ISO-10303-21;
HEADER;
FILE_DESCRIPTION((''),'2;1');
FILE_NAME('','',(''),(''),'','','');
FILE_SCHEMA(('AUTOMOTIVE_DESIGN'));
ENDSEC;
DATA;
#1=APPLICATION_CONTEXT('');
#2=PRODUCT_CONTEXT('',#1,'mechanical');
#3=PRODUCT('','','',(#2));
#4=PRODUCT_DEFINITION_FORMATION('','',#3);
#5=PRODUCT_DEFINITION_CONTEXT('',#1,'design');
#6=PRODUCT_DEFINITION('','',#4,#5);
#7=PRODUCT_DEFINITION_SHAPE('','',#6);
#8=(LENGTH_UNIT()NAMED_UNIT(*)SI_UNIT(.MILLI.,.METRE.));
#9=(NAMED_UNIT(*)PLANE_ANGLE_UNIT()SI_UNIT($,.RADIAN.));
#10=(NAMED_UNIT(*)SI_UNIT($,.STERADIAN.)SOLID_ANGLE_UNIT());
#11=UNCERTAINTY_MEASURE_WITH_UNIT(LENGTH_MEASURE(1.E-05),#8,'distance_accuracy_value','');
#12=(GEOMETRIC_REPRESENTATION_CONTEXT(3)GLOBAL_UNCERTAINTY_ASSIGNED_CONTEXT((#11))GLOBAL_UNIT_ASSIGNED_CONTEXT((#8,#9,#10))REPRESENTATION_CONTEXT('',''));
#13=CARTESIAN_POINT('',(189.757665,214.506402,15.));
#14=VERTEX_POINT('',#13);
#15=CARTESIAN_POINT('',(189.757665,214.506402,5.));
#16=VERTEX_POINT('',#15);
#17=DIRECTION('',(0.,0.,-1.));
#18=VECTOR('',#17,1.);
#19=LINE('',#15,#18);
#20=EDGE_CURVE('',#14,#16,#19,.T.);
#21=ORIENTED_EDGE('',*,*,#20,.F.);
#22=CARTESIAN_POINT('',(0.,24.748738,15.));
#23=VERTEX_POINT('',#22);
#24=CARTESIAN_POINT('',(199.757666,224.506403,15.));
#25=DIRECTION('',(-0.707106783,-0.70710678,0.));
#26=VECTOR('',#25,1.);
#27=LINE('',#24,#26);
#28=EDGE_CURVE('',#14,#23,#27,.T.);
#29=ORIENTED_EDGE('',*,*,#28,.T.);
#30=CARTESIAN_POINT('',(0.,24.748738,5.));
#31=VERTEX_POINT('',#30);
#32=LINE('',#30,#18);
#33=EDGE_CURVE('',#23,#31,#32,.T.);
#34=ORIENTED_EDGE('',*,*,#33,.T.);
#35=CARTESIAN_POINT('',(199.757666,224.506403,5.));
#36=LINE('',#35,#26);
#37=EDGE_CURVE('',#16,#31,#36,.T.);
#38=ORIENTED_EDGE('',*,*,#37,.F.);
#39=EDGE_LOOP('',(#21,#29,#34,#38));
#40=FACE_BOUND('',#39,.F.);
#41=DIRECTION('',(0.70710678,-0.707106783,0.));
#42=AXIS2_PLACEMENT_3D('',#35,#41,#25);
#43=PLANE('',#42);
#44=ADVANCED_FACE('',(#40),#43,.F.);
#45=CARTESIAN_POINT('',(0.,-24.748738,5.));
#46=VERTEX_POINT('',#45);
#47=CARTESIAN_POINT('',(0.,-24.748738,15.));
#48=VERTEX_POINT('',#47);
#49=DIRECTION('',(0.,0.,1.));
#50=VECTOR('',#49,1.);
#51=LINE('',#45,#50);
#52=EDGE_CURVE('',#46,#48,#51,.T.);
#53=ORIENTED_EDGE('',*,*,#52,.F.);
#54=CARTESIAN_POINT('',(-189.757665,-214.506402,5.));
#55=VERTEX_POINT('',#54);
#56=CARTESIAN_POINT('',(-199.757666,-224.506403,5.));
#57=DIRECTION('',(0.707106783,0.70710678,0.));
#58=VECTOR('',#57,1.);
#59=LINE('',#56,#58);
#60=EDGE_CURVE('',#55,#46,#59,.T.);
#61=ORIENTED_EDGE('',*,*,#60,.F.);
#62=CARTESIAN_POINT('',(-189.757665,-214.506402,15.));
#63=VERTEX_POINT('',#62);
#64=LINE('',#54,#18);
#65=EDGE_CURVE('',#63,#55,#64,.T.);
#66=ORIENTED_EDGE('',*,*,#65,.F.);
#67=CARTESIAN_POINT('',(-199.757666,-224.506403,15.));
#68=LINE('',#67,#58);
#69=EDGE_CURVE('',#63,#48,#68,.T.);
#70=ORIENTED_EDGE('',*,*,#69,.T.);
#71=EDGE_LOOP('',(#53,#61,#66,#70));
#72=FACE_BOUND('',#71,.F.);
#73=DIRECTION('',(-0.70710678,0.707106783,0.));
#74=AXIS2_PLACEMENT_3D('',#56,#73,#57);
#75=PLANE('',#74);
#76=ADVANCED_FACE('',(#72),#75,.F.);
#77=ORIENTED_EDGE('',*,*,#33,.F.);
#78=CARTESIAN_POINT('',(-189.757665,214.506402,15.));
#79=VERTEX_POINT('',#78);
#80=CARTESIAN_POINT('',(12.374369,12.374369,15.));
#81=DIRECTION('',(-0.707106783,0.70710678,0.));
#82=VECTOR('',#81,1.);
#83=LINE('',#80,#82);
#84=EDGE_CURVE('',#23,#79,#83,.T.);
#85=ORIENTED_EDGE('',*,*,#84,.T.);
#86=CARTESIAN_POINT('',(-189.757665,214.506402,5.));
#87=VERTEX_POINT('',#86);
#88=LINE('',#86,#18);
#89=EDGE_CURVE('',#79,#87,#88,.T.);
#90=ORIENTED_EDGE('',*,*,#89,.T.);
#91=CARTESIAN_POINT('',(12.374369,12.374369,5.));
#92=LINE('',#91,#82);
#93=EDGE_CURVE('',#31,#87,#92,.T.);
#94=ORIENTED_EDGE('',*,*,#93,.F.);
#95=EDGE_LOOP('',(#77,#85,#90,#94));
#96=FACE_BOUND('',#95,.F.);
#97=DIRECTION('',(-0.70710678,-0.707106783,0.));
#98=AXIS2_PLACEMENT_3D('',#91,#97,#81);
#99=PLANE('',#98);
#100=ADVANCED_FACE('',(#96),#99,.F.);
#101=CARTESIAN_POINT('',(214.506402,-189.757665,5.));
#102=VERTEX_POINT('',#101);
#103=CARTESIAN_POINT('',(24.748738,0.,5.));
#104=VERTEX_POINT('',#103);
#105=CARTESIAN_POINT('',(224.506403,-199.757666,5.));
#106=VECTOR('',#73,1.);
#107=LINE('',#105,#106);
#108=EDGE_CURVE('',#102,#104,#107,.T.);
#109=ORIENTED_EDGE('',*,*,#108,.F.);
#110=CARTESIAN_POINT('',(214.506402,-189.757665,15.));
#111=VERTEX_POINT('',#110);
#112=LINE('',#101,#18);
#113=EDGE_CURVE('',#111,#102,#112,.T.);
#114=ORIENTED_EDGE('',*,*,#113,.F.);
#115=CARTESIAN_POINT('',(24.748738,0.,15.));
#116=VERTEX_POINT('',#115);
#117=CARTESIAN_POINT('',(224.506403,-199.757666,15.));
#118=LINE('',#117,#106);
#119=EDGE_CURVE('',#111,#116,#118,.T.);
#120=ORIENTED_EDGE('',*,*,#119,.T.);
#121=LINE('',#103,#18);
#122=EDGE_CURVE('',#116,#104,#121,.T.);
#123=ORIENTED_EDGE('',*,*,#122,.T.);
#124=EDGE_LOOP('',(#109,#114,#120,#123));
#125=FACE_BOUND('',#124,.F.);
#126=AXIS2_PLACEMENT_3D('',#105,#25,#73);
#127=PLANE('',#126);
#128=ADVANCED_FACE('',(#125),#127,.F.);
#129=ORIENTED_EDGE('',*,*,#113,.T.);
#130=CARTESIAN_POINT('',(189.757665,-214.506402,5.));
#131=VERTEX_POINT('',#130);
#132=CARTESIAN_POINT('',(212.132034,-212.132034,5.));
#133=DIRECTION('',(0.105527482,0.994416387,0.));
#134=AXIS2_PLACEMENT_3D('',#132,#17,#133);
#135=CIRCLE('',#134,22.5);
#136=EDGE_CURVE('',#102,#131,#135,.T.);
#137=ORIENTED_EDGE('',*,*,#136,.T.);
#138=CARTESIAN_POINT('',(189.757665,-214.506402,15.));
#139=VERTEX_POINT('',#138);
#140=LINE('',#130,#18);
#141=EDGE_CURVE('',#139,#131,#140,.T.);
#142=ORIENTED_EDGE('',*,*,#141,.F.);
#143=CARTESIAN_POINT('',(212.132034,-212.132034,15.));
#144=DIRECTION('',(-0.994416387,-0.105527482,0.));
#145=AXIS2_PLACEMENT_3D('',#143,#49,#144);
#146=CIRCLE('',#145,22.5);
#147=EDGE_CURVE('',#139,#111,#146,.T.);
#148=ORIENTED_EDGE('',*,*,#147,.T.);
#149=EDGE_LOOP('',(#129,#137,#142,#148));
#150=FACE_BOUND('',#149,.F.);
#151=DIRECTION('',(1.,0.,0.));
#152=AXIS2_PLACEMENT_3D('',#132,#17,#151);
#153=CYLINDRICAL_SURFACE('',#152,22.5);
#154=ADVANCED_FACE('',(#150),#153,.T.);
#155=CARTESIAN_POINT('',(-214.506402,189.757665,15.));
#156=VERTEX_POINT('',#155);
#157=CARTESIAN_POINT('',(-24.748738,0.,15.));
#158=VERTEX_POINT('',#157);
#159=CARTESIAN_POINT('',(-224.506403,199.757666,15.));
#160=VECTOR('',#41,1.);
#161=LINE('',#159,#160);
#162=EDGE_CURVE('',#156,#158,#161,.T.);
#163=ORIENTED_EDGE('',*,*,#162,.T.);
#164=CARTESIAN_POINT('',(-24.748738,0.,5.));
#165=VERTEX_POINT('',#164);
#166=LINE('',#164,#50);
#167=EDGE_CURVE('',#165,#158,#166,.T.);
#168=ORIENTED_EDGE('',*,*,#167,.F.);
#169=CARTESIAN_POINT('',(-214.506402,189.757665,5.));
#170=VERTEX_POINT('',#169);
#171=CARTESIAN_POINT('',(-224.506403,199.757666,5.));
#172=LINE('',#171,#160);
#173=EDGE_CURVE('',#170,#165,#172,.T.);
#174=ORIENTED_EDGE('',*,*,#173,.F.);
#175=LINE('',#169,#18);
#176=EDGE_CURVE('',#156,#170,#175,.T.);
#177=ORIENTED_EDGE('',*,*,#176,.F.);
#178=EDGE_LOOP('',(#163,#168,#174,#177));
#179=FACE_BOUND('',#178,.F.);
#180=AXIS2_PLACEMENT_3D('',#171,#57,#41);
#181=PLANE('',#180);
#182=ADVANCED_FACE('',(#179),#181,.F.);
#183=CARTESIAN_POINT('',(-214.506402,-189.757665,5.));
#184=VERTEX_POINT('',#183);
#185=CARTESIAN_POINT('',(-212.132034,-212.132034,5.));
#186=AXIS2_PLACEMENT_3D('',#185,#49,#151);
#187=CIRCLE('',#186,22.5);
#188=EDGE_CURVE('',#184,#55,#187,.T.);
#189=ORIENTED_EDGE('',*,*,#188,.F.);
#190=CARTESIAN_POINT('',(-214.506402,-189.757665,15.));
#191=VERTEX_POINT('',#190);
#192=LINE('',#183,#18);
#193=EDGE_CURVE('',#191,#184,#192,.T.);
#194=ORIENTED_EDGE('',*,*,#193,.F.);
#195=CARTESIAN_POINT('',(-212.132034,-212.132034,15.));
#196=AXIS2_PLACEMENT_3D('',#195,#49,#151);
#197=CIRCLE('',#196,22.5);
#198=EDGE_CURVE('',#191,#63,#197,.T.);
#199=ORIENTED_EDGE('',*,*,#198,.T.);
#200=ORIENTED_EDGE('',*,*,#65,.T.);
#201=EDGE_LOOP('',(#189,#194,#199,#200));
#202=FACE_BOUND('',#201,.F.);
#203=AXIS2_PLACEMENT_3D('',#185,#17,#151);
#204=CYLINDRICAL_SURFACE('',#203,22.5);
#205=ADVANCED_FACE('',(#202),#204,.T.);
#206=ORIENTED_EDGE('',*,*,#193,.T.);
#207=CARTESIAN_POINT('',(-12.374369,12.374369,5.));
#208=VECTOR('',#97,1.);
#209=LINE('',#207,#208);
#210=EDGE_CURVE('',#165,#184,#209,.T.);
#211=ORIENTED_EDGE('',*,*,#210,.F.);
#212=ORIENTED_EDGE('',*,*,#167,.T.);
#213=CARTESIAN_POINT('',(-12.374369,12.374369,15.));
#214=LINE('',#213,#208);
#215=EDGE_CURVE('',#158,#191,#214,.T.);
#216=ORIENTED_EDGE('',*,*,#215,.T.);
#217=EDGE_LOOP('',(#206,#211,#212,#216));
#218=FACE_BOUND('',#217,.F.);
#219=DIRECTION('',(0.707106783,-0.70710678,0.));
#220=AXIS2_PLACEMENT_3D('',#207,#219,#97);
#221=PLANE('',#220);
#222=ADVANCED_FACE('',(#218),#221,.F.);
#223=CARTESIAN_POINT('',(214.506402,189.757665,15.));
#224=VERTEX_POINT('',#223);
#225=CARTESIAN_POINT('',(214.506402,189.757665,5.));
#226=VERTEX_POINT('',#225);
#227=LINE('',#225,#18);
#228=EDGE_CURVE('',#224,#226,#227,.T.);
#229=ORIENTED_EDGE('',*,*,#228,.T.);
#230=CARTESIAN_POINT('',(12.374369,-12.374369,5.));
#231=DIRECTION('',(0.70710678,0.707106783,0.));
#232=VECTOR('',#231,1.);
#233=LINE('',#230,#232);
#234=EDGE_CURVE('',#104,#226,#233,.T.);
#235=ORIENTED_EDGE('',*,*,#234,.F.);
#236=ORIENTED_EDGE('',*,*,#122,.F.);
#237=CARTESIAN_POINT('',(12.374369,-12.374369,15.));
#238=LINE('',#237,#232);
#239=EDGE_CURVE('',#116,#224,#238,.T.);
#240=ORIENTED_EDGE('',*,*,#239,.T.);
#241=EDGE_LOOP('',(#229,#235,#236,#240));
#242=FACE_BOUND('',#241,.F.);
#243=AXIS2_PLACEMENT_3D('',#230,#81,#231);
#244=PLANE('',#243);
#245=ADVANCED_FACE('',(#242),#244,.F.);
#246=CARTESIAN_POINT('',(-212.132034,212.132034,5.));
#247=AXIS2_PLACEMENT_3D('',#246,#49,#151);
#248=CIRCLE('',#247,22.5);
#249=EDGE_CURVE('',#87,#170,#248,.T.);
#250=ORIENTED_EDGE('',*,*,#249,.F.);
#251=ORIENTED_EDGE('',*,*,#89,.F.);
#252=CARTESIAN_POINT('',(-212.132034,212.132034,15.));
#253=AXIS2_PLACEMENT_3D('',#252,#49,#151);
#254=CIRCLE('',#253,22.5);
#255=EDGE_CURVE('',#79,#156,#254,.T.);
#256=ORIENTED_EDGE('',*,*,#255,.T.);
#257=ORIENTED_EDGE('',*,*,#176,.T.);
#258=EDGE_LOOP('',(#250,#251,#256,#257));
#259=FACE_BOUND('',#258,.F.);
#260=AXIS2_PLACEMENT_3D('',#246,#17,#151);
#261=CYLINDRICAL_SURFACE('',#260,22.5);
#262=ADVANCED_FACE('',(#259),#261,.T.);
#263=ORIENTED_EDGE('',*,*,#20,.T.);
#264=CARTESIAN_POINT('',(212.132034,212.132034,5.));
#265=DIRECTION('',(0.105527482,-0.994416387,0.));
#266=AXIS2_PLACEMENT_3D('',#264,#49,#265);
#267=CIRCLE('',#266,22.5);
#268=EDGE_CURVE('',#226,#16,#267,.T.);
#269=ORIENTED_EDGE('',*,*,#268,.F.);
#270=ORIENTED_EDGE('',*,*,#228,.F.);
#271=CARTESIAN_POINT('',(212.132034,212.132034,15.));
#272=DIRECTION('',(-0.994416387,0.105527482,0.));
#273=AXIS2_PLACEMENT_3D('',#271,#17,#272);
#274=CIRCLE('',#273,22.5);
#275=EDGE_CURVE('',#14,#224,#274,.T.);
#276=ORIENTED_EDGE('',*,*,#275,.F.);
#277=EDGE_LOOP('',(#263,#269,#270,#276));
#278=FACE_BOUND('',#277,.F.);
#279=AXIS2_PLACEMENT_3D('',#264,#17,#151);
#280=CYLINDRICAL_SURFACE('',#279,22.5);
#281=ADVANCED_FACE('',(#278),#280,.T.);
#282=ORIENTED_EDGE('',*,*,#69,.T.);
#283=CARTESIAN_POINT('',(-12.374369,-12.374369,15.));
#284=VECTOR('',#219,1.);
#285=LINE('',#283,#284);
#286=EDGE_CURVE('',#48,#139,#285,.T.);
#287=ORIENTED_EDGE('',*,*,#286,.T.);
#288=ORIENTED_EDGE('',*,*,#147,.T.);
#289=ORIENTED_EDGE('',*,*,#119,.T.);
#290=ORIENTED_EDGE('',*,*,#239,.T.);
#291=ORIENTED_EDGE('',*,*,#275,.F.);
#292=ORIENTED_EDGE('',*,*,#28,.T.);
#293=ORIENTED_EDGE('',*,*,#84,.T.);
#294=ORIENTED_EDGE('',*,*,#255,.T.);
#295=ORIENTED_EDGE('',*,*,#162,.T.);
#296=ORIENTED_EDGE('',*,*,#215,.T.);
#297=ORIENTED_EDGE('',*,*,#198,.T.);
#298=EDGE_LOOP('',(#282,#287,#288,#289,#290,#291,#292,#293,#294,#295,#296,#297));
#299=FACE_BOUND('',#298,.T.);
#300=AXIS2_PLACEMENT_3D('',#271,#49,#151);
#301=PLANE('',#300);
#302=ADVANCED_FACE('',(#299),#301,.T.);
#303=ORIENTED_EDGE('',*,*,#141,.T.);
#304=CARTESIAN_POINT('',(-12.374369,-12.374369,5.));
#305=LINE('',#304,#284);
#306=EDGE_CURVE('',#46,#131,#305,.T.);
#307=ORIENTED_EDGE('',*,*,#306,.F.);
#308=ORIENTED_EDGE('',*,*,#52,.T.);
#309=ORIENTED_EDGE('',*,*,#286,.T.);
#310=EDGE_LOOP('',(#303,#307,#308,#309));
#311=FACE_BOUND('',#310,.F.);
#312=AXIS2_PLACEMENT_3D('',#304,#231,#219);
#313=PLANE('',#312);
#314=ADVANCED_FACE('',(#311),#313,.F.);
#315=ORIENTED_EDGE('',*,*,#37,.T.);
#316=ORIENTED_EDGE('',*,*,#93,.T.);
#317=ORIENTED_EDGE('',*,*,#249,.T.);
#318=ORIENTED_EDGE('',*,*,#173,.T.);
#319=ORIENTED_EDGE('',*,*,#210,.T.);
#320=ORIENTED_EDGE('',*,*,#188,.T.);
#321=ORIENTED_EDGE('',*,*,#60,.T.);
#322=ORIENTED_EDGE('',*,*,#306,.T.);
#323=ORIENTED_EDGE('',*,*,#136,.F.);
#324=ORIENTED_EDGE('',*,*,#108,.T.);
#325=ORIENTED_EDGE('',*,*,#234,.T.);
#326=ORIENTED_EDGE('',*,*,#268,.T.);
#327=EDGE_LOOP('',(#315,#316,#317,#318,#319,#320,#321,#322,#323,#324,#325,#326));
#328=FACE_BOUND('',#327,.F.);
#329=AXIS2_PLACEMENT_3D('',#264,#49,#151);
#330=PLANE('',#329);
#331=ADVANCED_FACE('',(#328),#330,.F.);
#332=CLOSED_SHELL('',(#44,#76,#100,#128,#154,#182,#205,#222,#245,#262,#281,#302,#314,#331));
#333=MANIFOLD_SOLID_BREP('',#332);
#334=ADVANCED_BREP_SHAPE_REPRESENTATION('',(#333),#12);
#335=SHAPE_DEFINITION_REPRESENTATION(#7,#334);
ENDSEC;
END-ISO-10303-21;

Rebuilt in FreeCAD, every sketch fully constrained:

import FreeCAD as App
import Part
import Sketcher
Q = App.Units.Quantity

doc = App.newDocument("Part")
body = doc.addObject("PartDesign::Body", "Body")

sketch1 = body.newObject("Sketcher::SketchObject", "Sketch")
sketch1.AttachmentSupport = (doc.getObject("XY_Plane"), [""])
sketch1.MapMode = "FlatFace"
sketch1.AttachmentOffset = App.Placement(App.Vector(0, 0, 5), App.Rotation())
sketch1.addGeometry([
    Part.LineSegment(App.Vector(-12, -12, 0), App.Vector(200, -225, 0)),
    Part.LineSegment(App.Vector(200, -225, 0), App.Vector(225, -200, 0)),
    Part.LineSegment(App.Vector(225, -200, 0), App.Vector(12, 12, 0)),
    Part.LineSegment(App.Vector(12, 12, 0), App.Vector(-12, -12, 0)),
], False)
sketch1.addConstraint([
    Sketcher.Constraint("Coincident", 0, 2, 1, 1),
    Sketcher.Constraint("Coincident", 1, 2, 2, 1),
    Sketcher.Constraint("Coincident", 2, 2, 3, 1),
    Sketcher.Constraint("Coincident", 3, 2, 0, 1),
    Sketcher.Constraint("Symmetric", 2, 2, 3, 2, -1, 1),
    Sketcher.Constraint("Perpendicular", 0, 1),
    Sketcher.Constraint("Perpendicular", 1, 2),
    Sketcher.Constraint("Perpendicular", 2, 3),
    Sketcher.Constraint("Angle", 0, Q("-45 deg")),
    Sketcher.Constraint("Distance", 0, 300.0),
    Sketcher.Constraint("Distance", 1, 35.0),
])
pad1 = body.newObject("PartDesign::Pad", "Pad")
pad1.Profile = sketch1
pad1.Length = 10

sketch2 = body.newObject("Sketcher::SketchObject", "Sketch001")
sketch2.AttachmentSupport = (doc.getObject("XY_Plane"), [""])
sketch2.MapMode = "FlatFace"
sketch2.AttachmentOffset = App.Placement(App.Vector(0, 0, 5), App.Rotation())
sketch2.addGeometry([
    Part.LineSegment(App.Vector(-12, 12, 0), App.Vector(-225, -200, 0)),
    Part.LineSegment(App.Vector(-225, -200, 0), App.Vector(-200, -225, 0)),
    Part.LineSegment(App.Vector(-200, -225, 0), App.Vector(12, -12, 0)),
    Part.LineSegment(App.Vector(12, -12, 0), App.Vector(-12, 12, 0)),
], False)
sketch2.addConstraint([
    Sketcher.Constraint("Coincident", 0, 2, 1, 1),
    Sketcher.Constraint("Coincident", 1, 2, 2, 1),
    Sketcher.Constraint("Coincident", 2, 2, 3, 1),
    Sketcher.Constraint("Coincident", 3, 2, 0, 1),
    Sketcher.Constraint("Symmetric", 2, 2, 3, 2, -1, 1),
    Sketcher.Constraint("Perpendicular", 0, 1),
    Sketcher.Constraint("Perpendicular", 1, 2),
    Sketcher.Constraint("Perpendicular", 2, 3),
    Sketcher.Constraint("Angle", 0, Q("-135 deg")),
    Sketcher.Constraint("Distance", 0, 300.0),
    Sketcher.Constraint("Distance", 1, 35.0),
])
pad2 = body.newObject("PartDesign::Pad", "Pad001")
pad2.Profile = sketch2
pad2.Length = 10

sketch3 = body.newObject("Sketcher::SketchObject", "Sketch002")
sketch3.AttachmentSupport = (doc.getObject("XY_Plane"), [""])
sketch3.MapMode = "FlatFace"
sketch3.AttachmentOffset = App.Placement(App.Vector(0, 0, 5), App.Rotation())
sketch3.addGeometry([
    Part.LineSegment(App.Vector(12, -12, 0), App.Vector(225, 200, 0)),
    Part.LineSegment(App.Vector(225, 200, 0), App.Vector(200, 225, 0)),
    Part.LineSegment(App.Vector(200, 225, 0), App.Vector(-12, 12, 0)),
    Part.LineSegment(App.Vector(-12, 12, 0), App.Vector(12, -12, 0)),
], False)
sketch3.addConstraint([
    Sketcher.Constraint("Coincident", 0, 2, 1, 1),
    Sketcher.Constraint("Coincident", 1, 2, 2, 1),
    Sketcher.Constraint("Coincident", 2, 2, 3, 1),
    Sketcher.Constraint("Coincident", 3, 2, 0, 1),
    Sketcher.Constraint("Symmetric", 2, 2, 3, 2, -1, 1),
    Sketcher.Constraint("Perpendicular", 0, 1),
    Sketcher.Constraint("Perpendicular", 1, 2),
    Sketcher.Constraint("Perpendicular", 2, 3),
    Sketcher.Constraint("Angle", 0, Q("45 deg")),
    Sketcher.Constraint("Distance", 0, 300.0),
    Sketcher.Constraint("Distance", 1, 35.0),
])
pad3 = body.newObject("PartDesign::Pad", "Pad002")
pad3.Profile = sketch3
pad3.Length = 10

sketch4 = body.newObject("Sketcher::SketchObject", "Sketch003")
sketch4.AttachmentSupport = (doc.getObject("XY_Plane"), [""])
sketch4.MapMode = "FlatFace"
sketch4.AttachmentOffset = App.Placement(App.Vector(0, 0, 5), App.Rotation())
sketch4.addGeometry([
    Part.LineSegment(App.Vector(12, 12, 0), App.Vector(-200, 225, 0)),
    Part.LineSegment(App.Vector(-200, 225, 0), App.Vector(-225, 200, 0)),
    Part.LineSegment(App.Vector(-225, 200, 0), App.Vector(-12, -12, 0)),
    Part.LineSegment(App.Vector(-12, -12, 0), App.Vector(12, 12, 0)),
], False)
sketch4.addConstraint([
    Sketcher.Constraint("Coincident", 0, 2, 1, 1),
    Sketcher.Constraint("Coincident", 1, 2, 2, 1),
    Sketcher.Constraint("Coincident", 2, 2, 3, 1),
    Sketcher.Constraint("Coincident", 3, 2, 0, 1),
    Sketcher.Constraint("Symmetric", 2, 2, 3, 2, -1, 1),
    Sketcher.Constraint("Perpendicular", 0, 1),
    Sketcher.Constraint("Perpendicular", 1, 2),
    Sketcher.Constraint("Perpendicular", 2, 3),
    Sketcher.Constraint("Angle", 0, Q("135 deg")),
    Sketcher.Constraint("Distance", 0, 300.0),
    Sketcher.Constraint("Distance", 1, 35.0),
])
pad4 = body.newObject("PartDesign::Pad", "Pad003")
pad4.Profile = sketch4
pad4.Length = 10

sketch5 = body.newObject("Sketcher::SketchObject", "Sketch004")
sketch5.AttachmentSupport = (doc.getObject("XY_Plane"), [""])
sketch5.MapMode = "FlatFace"
sketch5.AttachmentOffset = App.Placement(App.Vector(0, 0, 5), App.Rotation())
sketch5.addGeometry([
    Part.Circle(App.Vector(212, 212, 0), App.Vector(0, 0, 1), 22),
    Part.Circle(App.Vector(212, -212, 0), App.Vector(0, 0, 1), 22),
    Part.Circle(App.Vector(-212, -212, 0), App.Vector(0, 0, 1), 22),
    Part.Circle(App.Vector(-212, 212, 0), App.Vector(0, 0, 1), 22),
], False)
sketch5.addConstraint([
    Sketcher.Constraint("Equal", 0, 1),
    Sketcher.Constraint("Equal", 1, 2),
    Sketcher.Constraint("Equal", 2, 3),
    Sketcher.Constraint("Symmetric", 0, 3, 2, 3, -1, 1),
    Sketcher.Constraint("Symmetric", 1, 3, 3, 3, -1, 1),
    Sketcher.Constraint("Symmetric", 1, 3, 2, 3, -2),
    Sketcher.Constraint("Diameter", 0, 45.0),
    Sketcher.Constraint("DistanceY", 1, 3, 0, 3, 424.264068),
    Sketcher.Constraint("DistanceX", 2, 3, 1, 3, 424.264068),
])
pad5 = body.newObject("PartDesign::Pad", "Pad004")
pad5.Profile = sketch5
pad5.Length = 10

doc.recompute()
